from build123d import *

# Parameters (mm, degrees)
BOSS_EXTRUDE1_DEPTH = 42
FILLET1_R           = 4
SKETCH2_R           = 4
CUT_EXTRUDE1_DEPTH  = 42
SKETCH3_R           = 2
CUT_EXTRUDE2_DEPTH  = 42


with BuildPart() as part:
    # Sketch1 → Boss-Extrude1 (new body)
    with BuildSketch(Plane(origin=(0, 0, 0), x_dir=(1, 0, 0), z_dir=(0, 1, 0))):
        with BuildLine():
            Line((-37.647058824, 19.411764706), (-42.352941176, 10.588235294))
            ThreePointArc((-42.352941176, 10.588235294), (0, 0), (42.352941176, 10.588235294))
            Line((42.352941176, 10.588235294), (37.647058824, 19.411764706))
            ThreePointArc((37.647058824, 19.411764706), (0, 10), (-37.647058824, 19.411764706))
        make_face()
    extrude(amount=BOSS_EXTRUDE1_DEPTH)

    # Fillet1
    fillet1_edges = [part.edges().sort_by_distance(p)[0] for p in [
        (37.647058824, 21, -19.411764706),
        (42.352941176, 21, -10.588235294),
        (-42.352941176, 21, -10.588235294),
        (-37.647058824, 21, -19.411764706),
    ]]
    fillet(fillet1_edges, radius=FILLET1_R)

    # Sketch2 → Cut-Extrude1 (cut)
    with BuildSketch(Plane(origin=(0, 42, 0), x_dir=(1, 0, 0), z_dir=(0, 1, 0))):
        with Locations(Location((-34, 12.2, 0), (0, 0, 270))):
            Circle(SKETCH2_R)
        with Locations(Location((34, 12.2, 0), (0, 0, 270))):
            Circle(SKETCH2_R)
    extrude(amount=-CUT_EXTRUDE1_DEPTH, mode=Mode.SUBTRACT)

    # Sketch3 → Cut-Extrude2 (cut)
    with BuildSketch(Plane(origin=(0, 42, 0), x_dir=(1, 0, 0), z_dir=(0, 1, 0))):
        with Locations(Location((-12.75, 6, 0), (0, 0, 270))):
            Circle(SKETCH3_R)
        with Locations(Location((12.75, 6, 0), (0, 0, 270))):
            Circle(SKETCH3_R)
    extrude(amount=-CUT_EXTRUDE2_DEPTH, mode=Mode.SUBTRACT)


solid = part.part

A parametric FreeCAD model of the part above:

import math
import FreeCAD as App
import Part
import Sketcher
from FreeCAD import Vector
Q = App.Units.Quantity


def edges_at(feature, points):
    """Names of the edges that pass closest to the given points."""
    edges = feature.Shape.Edges
    near = lambda p: min(range(len(edges)), key=lambda i: edges[i].distToShape(Part.Vertex(*p))[0])
    return sorted({f"Edge{near(p) + 1}" for p in points})

doc = App.newDocument("Part")
body = doc.addObject("PartDesign::Body", "Body")

# Sketch on XZ plane
sketch1 = body.newObject("Sketcher::SketchObject", "Sketch")
sketch1.AttachmentSupport = (doc.getObject("XZ_Plane"), [""])
sketch1.MapMode = "FlatFace"
sketch1.addGeometry(Part.LineSegment(Vector(-38, -19, 0), Vector(-42, -11, 0)), False)
sketch1.addGeometry(Part.ArcOfCircle(Part.Circle(Vector(0, -90, 0), Vector(0, 0, 1), 90), math.radians(62), math.radians(118)), False)
sketch1.addGeometry(Part.LineSegment(Vector(42, -11, 0), Vector(38, -19, 0)), False)
sketch1.addGeometry(Part.ArcOfCircle(Part.Circle(Vector(0, -90, 0), Vector(0, 0, 1), 80), math.radians(62), math.radians(118)), False)
sketch1.addConstraint(Sketcher.Constraint("Coincident", 0, 2, 1, 2))
sketch1.addConstraint(Sketcher.Constraint("Coincident", 1, 1, 2, 1))
sketch1.addConstraint(Sketcher.Constraint("Coincident", 2, 2, 3, 1))
sketch1.addConstraint(Sketcher.Constraint("Coincident", 3, 2, 0, 1))
sketch1.addConstraint(Sketcher.Constraint("Coincident", 3, 3, 1, 3))
sketch1.addConstraint(Sketcher.Constraint("Symmetric", 0, 2, 1, 1, -2))
sketch1.addConstraint(Sketcher.Constraint("Horizontal", 2, 2, 3, 2))
sketch1.addConstraint(Sketcher.Constraint("Radius", 1, Q("90 mm")))
sketch1.addConstraint(Sketcher.Constraint("Radius", 3, Q("80 mm")))
sketch1.addConstraint(Sketcher.Constraint("DistanceY", 1, 3, -1, 1, Q("90 mm")))
sketch1.addConstraint(Sketcher.Constraint("DistanceX", 0, 2, 2, 2, Q("80 mm")))
sketch1.addConstraint(Sketcher.Constraint("DistanceX", 0, 2, -1, 1, Q("42.352941 mm")))
pad1 = body.newObject("PartDesign::Pad", "Pad")
pad1.Profile = sketch1
pad1.Length = 42
pad1.Reversed = True
doc.recompute()

fillet = body.newObject("PartDesign::Fillet", "Fillet")
fillet.Base = (pad1, edges_at(pad1, [
    (37.647, 21, -19.412),
    (42.353, 21, -10.588),
    (-42.353, 21, -10.588),
    (-37.647, 21, -19.412),
]))
fillet.Radius = 4

# Sketch on XZ plane
sketch2 = body.newObject("Sketcher::SketchObject", "Sketch001")
sketch2.AttachmentSupport = (doc.getObject("XZ_Plane"), [""])
sketch2.MapMode = "FlatFace"
sketch2.AttachmentOffset = App.Placement(Vector(0, 0, -42), App.Rotation())
sketch2.addGeometry(Part.Circle(Vector(-34, -12.2, 0), Vector(0, 0, 1), 4), False)
sketch2.addGeometry(Part.Circle(Vector(34, -12.2, 0), Vector(0, 0, 1), 4), False)
sketch2.addConstraint(Sketcher.Constraint("Equal", 0, 1))
sketch2.addConstraint(Sketcher.Constraint("Symmetric", 0, 3, 1, 3, -2))
sketch2.addConstraint(Sketcher.Constraint("Diameter", 0, Q("8 mm")))
sketch2.addConstraint(Sketcher.Constraint("DistanceX", 0, 3, -1, 1, Q("34 mm")))
sketch2.addConstraint(Sketcher.Constraint("DistanceY", 0, 3, -1, 1, Q("12.2 mm")))
pocket1 = body.newObject("PartDesign::Pocket", "Pocket")
pocket1.Profile = sketch2
pocket1.Length = 42
pocket1.Reversed = True

# Sketch on XZ plane
sketch3 = body.newObject("Sketcher::SketchObject", "Sketch002")
sketch3.AttachmentSupport = (doc.getObject("XZ_Plane"), [""])
sketch3.MapMode = "FlatFace"
sketch3.AttachmentOffset = App.Placement(Vector(0, 0, -42), App.Rotation())
sketch3.addGeometry(Part.Circle(Vector(-12.8, -6, 0), Vector(0, 0, 1), 2), False)
sketch3.addGeometry(Part.Circle(Vector(12.8, -6, 0), Vector(0, 0, 1), 2), False)
sketch3.addConstraint(Sketcher.Constraint("Equal", 0, 1))
sketch3.addConstraint(Sketcher.Constraint("Symmetric", 0, 3, 1, 3, -2))
sketch3.addConstraint(Sketcher.Constraint("Diameter", 0, Q("4 mm")))
sketch3.addConstraint(Sketcher.Constraint("DistanceY", 0, 3, -1, 1, Q("6 mm")))
sketch3.addConstraint(Sketcher.Constraint("DistanceX", 0, 3, 1, 3, Q("25.5 mm")))
pocket2 = body.newObject("PartDesign::Pocket", "Pocket001")
pocket2.Profile = sketch3
pocket2.Length = 42
pocket2.Reversed = True

doc.recompute()
